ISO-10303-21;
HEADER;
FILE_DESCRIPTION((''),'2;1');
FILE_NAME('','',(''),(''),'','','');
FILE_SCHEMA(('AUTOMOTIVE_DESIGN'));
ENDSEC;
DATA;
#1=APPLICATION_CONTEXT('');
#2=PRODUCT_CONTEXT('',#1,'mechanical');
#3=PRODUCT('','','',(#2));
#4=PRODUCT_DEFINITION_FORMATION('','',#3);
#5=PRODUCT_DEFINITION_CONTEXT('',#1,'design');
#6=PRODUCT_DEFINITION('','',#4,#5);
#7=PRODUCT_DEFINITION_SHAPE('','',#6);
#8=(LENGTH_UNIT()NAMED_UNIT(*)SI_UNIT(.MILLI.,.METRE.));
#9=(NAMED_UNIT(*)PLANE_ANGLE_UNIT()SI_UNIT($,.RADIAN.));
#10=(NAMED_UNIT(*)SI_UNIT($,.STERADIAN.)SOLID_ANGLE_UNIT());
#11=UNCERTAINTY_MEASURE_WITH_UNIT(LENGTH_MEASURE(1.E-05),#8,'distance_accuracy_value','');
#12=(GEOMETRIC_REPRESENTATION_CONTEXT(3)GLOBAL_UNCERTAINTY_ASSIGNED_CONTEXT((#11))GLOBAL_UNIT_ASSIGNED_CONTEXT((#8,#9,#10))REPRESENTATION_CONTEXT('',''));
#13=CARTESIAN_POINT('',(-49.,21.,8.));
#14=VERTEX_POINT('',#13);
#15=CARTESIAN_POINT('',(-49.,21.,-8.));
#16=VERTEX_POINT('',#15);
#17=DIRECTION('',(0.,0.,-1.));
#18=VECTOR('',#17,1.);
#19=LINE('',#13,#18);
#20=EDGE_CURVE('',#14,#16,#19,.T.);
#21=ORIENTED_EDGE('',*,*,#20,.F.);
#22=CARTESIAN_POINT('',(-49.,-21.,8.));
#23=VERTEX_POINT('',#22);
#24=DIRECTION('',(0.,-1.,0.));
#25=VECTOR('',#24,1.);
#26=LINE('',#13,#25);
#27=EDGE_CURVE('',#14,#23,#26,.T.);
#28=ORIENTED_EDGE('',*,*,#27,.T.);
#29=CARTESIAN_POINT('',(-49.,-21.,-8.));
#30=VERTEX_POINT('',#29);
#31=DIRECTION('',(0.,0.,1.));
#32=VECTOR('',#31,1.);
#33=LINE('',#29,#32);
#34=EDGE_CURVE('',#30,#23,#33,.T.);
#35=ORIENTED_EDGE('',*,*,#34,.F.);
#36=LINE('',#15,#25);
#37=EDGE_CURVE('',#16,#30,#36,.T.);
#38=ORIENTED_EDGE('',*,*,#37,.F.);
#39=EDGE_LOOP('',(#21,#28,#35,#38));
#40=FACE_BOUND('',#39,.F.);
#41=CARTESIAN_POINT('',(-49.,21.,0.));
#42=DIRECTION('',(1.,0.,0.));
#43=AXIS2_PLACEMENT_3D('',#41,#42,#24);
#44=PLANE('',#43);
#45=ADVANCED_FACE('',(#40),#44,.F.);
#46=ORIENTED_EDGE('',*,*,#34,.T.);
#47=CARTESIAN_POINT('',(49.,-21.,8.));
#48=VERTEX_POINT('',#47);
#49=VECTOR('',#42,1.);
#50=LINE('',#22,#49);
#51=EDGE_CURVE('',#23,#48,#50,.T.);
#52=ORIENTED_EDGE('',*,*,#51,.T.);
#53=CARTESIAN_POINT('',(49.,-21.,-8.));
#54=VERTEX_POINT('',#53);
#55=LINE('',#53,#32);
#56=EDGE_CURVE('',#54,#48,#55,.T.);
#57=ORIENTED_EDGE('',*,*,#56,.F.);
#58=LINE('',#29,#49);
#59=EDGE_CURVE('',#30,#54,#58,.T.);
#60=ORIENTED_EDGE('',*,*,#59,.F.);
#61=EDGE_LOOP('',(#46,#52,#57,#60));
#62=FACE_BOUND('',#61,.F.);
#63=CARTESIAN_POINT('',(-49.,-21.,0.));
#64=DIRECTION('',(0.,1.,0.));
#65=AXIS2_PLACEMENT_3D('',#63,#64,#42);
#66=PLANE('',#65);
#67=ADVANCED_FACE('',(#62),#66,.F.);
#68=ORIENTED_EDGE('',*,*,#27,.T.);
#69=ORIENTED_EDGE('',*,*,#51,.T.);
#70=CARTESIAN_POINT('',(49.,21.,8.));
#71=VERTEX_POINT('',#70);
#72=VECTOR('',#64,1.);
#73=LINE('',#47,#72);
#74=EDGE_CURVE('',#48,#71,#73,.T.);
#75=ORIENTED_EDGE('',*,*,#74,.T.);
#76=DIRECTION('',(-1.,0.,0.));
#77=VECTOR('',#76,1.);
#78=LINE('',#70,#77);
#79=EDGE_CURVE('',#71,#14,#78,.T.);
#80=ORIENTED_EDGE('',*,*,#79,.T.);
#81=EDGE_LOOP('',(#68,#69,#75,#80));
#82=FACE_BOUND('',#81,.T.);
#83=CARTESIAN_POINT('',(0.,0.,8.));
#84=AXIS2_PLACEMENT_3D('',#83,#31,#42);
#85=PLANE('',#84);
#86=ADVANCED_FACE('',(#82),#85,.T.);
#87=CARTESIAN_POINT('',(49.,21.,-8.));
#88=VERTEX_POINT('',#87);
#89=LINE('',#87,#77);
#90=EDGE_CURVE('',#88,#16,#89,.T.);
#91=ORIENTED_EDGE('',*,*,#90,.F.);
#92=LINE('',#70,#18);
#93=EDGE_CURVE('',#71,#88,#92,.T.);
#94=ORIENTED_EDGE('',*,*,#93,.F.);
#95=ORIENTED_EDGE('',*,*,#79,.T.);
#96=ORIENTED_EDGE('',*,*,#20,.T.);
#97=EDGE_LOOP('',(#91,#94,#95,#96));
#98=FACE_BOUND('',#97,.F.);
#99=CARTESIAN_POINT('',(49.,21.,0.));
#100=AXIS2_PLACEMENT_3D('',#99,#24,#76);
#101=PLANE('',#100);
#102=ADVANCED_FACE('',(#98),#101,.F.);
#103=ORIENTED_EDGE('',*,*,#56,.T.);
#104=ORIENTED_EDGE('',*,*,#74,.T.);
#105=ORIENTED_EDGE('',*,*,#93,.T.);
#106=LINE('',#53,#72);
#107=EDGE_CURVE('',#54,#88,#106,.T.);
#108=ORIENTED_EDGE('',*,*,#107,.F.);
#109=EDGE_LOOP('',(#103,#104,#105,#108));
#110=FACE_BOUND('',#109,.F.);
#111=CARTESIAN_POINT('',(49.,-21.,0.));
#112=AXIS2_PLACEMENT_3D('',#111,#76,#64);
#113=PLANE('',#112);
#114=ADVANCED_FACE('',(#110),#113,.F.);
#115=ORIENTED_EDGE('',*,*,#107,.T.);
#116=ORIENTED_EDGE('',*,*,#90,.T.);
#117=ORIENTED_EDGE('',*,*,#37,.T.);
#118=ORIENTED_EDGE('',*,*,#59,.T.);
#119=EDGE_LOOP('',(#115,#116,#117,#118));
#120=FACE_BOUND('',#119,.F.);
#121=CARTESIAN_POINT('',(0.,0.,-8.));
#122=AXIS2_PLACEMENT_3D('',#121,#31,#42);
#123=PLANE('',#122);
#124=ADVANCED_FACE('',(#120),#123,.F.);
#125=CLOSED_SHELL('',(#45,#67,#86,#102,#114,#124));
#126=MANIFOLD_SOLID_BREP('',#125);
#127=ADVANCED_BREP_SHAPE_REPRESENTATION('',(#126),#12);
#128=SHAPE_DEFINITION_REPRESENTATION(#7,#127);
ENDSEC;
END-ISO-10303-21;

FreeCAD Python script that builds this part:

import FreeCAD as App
import Part
import Sketcher

V = App.Vector
Q = App.Units.Quantity

doc = App.newDocument("Part")
body = doc.addObject("PartDesign::Body", "Body")

# Sketch on XY plane
sketch1 = body.newObject("Sketcher::SketchObject", "Sketch")
sketch1.AttachmentSupport = (doc.getObject("XY_Plane"), [""])
sketch1.MapMode = "FlatFace"
sketch1.addGeometry([
    Part.LineSegment(V(-49, 21, 0), V(-49, -21, 0)),
    Part.LineSegment(V(-49, -21, 0), V(49, -21, 0)),
    Part.LineSegment(V(49, -21, 0), V(49, 21, 0)),
    Part.LineSegment(V(49, 21, 0), V(-49, 21, 0)),
], False)
sketch1.addConstraint([
    Sketcher.Constraint("Coincident", 0, 2, 1, 1),
    Sketcher.Constraint("Coincident", 1, 2, 2, 1),
    Sketcher.Constraint("Coincident", 2, 2, 3, 1),
    Sketcher.Constraint("Coincident", 3, 2, 0, 1),
    Sketcher.Constraint("Vertical", 0),
    Sketcher.Constraint("Horizontal", 1),
    Sketcher.Constraint("Vertical", 2),
    Sketcher.Constraint("Horizontal", 3),
    Sketcher.Constraint("Symmetric", 0, 2, 2, 2, -1, 1),
    Sketcher.Constraint("DistanceX", 1, 1, 1, 2, Q("98 mm")),
    Sketcher.Constraint("DistanceY", 0, 2, 0, 1, Q("42 mm")),
])
pad1 = body.newObject("PartDesign::Pad", "Pad")
pad1.Profile = sketch1
pad1.Length = 16
pad1.Midplane = True

doc.recompute()
